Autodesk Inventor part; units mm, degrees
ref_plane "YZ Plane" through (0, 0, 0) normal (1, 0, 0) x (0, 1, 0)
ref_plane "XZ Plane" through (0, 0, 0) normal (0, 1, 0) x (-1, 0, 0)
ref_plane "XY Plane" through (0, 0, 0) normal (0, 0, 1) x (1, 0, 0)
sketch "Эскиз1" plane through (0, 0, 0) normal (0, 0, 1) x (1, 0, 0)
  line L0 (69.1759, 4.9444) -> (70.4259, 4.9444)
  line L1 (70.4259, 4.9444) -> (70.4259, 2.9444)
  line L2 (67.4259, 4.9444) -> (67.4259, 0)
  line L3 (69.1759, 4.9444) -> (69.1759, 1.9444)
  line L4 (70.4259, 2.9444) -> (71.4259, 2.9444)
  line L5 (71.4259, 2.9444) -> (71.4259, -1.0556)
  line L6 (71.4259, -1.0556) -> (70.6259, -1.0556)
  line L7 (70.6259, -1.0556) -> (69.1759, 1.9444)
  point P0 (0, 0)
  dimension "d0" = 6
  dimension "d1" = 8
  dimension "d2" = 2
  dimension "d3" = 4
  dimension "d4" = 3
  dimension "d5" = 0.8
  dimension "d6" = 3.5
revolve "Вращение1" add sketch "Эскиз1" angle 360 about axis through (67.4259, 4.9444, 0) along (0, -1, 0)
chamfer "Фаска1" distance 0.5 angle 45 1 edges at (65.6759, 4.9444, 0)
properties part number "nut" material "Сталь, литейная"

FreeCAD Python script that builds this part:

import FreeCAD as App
import Part
import Sketcher

V = App.Vector


def edges_at(feature, points):
    """Names of the edges that pass closest to the given points."""
    edges = feature.Shape.Edges
    near = lambda p: min(range(len(edges)), key=lambda i: edges[i].distToShape(Part.Vertex(*p))[0])
    return sorted({f"Edge{near(p) + 1}" for p in points})

doc = App.newDocument("Part")
params = doc.addObject("Spreadsheet::Sheet", "Params")
for row, (alias, value) in enumerate([
    ("sketch1_height", "3 mm"),
    ("sketch1_height2", "4 mm"),
    ("sketch1_height3", "2 mm"),
    ("sketch1_width", "0.8 mm"),
    ("sketch1_width2", "1.25 mm"),
    ("revolution_angle", "360 deg"),
    ("chamfer_size", "0.5 mm"),
], start=1):
    params.set(f"A{row}", alias)
    params.set(f"B{row}", "=" + value)
    params.setAlias(f"B{row}", alias)

body = doc.addObject("PartDesign::Body", "Body")

# Sketch on XY plane
sketch1 = body.newObject("Sketcher::SketchObject", "Sketch")
sketch1.AttachmentSupport = (doc.getObject("XY_Plane"), [""])
sketch1.MapMode = "FlatFace"
sketch1.addGeometry(Part.LineSegment(V(70.4, 4.9, 0), V(69.2, 4.9, 0)), False)
sketch1.addGeometry(Part.LineSegment(V(69.2, 4.9, 0), V(69.2, 1.9, 0)), False)
sketch1.addGeometry(Part.LineSegment(V(69.2, 1.9, 0), V(70.6, -1.1, 0)), False)
sketch1.addGeometry(Part.LineSegment(V(70.6, -1.1, 0), V(71.4, -1.1, 0)), False)
sketch1.addGeometry(Part.LineSegment(V(71.4, -1.1, 0), V(71.4, 2.9, 0)), False)
sketch1.addGeometry(Part.LineSegment(V(71.4, 2.9, 0), V(70.4, 2.9, 0)), False)
sketch1.addGeometry(Part.LineSegment(V(70.4, 2.9, 0), V(70.4, 4.9, 0)), False)
sketch1.addGeometry(Part.LineSegment(V(67.4, 4.9, 0), V(67.4, -1.1, 0)), True)  # axis
sketch1.addConstraint(Sketcher.Constraint("Coincident", 0, 2, 1, 1))
sketch1.addConstraint(Sketcher.Constraint("Coincident", 1, 2, 2, 1))
sketch1.addConstraint(Sketcher.Constraint("Coincident", 2, 2, 3, 1))
sketch1.addConstraint(Sketcher.Constraint("Coincident", 3, 2, 4, 1))
sketch1.addConstraint(Sketcher.Constraint("Coincident", 4, 2, 5, 1))
sketch1.addConstraint(Sketcher.Constraint("Coincident", 5, 2, 6, 1))
sketch1.addConstraint(Sketcher.Constraint("Coincident", 6, 2, 0, 1))
sketch1.addConstraint(Sketcher.Constraint("Horizontal", 0))
sketch1.addConstraint(Sketcher.Constraint("Vertical", 1))
sketch1.addConstraint(Sketcher.Constraint("Horizontal", 3))
sketch1.addConstraint(Sketcher.Constraint("Vertical", 4))
sketch1.addConstraint(Sketcher.Constraint("Horizontal", 5))
sketch1.addConstraint(Sketcher.Constraint("Vertical", 6))
sketch1.addConstraint(Sketcher.Constraint("Vertical", 7))
sketch1.addConstraint(Sketcher.Constraint("Horizontal", 6, 2, 7, 1))
sketch1.addConstraint(Sketcher.Constraint("Horizontal", 3, 2, 7, 2))
sketch1.addConstraint(Sketcher.Constraint("DistanceY", 1, 2, 1, 1, 3.0))
sketch1.addConstraint(Sketcher.Constraint("DistanceY", 4, 1, 4, 2, 4.0))
sketch1.addConstraint(Sketcher.Constraint("DistanceY", 6, 1, 6, 2, 2.0))
sketch1.addConstraint(Sketcher.Constraint("DistanceX", 3, 1, 3, 2, 0.8))
sketch1.addConstraint(Sketcher.Constraint("DistanceX", 7, 1, 6, 2, 3.0))
sketch1.addConstraint(Sketcher.Constraint("DistanceX", 7, 1, 4, 2, 4.0))
sketch1.addConstraint(Sketcher.Constraint("DistanceX", 0, 2, 0, 1, 1.25))
sketch1.addConstraint(Sketcher.Constraint("DistanceX", -1, 1, 0, 2, 69.176))
sketch1.addConstraint(Sketcher.Constraint("DistanceY", -1, 1, 0, 2, 4.9444))
sketch1.setExpression("Constraints[16]", "Params.sketch1_height")
sketch1.setExpression("Constraints[17]", "Params.sketch1_height2")
sketch1.setExpression("Constraints[18]", "Params.sketch1_height3")
sketch1.setExpression("Constraints[19]", "Params.sketch1_width")
sketch1.setExpression("Constraints[22]", "Params.sketch1_width2")
revolution = body.newObject("PartDesign::Revolution", "Revolution")
revolution.Profile = sketch1
revolution.ReferenceAxis = (sketch1, ["Axis0"])
revolution.setExpression("Angle", "Params.revolution_angle")
doc.recompute()

chamfer = body.newObject("PartDesign::Chamfer", "Chamfer")
chamfer.Base = (revolution, edges_at(revolution, [(65.676, 4.944, 0)]))
chamfer.setExpression("Size", "Params.chamfer_size")

doc.recompute()
